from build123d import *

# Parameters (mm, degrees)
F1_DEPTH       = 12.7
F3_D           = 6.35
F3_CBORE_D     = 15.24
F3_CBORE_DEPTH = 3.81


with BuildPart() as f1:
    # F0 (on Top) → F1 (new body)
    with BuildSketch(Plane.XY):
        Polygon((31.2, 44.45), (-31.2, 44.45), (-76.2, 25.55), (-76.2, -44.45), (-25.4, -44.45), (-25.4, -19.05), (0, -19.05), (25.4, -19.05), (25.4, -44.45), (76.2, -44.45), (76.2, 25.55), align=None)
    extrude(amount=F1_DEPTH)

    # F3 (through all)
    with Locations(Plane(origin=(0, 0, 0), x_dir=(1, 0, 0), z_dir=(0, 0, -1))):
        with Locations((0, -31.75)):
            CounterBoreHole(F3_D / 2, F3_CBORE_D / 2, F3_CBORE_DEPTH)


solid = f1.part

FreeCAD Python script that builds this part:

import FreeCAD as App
import Part
import Sketcher
Q = App.Units.Quantity

doc = App.newDocument("Part")
body = doc.addObject("PartDesign::Body", "Body")

sketch1 = doc.addObject("Sketcher::SketchObject", "Sketch")
body.addObject(sketch1)
sketch1.AttachmentSupport = (doc.XY_Plane, [""])
sketch1.MapMode = "FlatFace"
sketch1.addGeometry(Part.LineSegment(App.Vector(31, 44, 0), App.Vector(-31, 44, 0)), False)
sketch1.addGeometry(Part.LineSegment(App.Vector(-31, 44, 0), App.Vector(-76, 26, 0)), False)
sketch1.addGeometry(Part.LineSegment(App.Vector(-76, 26, 0), App.Vector(-76, -44, 0)), False)
sketch1.addGeometry(Part.LineSegment(App.Vector(-76, -44, 0), App.Vector(-25, -44, 0)), False)
sketch1.addGeometry(Part.LineSegment(App.Vector(-25, -44, 0), App.Vector(-25, -19, 0)), False)
sketch1.addGeometry(Part.LineSegment(App.Vector(-25, -19, 0), App.Vector(25, -19, 0)), False)
sketch1.addGeometry(Part.LineSegment(App.Vector(25, -19, 0), App.Vector(25, -44, 0)), False)
sketch1.addGeometry(Part.LineSegment(App.Vector(25, -44, 0), App.Vector(76, -44, 0)), False)
sketch1.addGeometry(Part.LineSegment(App.Vector(76, -44, 0), App.Vector(76, 26, 0)), False)
sketch1.addGeometry(Part.LineSegment(App.Vector(76, 26, 0), App.Vector(31, 44, 0)), False)
sketch1.addConstraint(Sketcher.Constraint("Coincident", 0, 2, 1, 1))
sketch1.addConstraint(Sketcher.Constraint("Coincident", 1, 2, 2, 1))
sketch1.addConstraint(Sketcher.Constraint("Coincident", 2, 2, 3, 1))
sketch1.addConstraint(Sketcher.Constraint("Coincident", 3, 2, 4, 1))
sketch1.addConstraint(Sketcher.Constraint("Coincident", 4, 2, 5, 1))
sketch1.addConstraint(Sketcher.Constraint("Coincident", 5, 2, 6, 1))
sketch1.addConstraint(Sketcher.Constraint("Coincident", 6, 2, 7, 1))
sketch1.addConstraint(Sketcher.Constraint("Coincident", 7, 2, 8, 1))
sketch1.addConstraint(Sketcher.Constraint("Coincident", 8, 2, 9, 1))
sketch1.addConstraint(Sketcher.Constraint("Coincident", 9, 2, 0, 1))
sketch1.addConstraint(Sketcher.Constraint("Horizontal", 0))
sketch1.addConstraint(Sketcher.Constraint("Vertical", 2))
sketch1.addConstraint(Sketcher.Constraint("Horizontal", 3))
sketch1.addConstraint(Sketcher.Constraint("Vertical", 4))
sketch1.addConstraint(Sketcher.Constraint("Horizontal", 5))
sketch1.addConstraint(Sketcher.Constraint("Vertical", 6))
sketch1.addConstraint(Sketcher.Constraint("Horizontal", 7))
sketch1.addConstraint(Sketcher.Constraint("Vertical", 8))
sketch1.addConstraint(Sketcher.Constraint("Symmetric", 3, 2, 6, 2, -2))
sketch1.addConstraint(Sketcher.Constraint("Symmetric", 1, 2, 8, 2, -2))
sketch1.addConstraint(Sketcher.Constraint("Equal", 3, 5))
sketch1.addConstraint(Sketcher.Constraint("Equal", 1, 9))
sketch1.addConstraint(Sketcher.Constraint("DistanceX", 3, 1, 3, 2, Q("2 in")))
sketch1.addConstraint(Sketcher.Constraint("DistanceY", 4, 1, 4, 2, Q("1 in")))
sketch1.addConstraint(Sketcher.Constraint("DistanceY", 2, 2, 0, 2, Q("3.5 in")))
sketch1.addConstraint(Sketcher.Constraint("DistanceY", -1, 1, 0, 2, Q("1.75 in")))
sketch1.addConstraint(Sketcher.Constraint("DistanceX", 0, 2, 0, 1, 62.4))
sketch1.addConstraint(Sketcher.Constraint("DistanceY", 2, 2, 2, 1, 70.0))
pad1 = doc.addObject("PartDesign::Pad", "Pad")
body.addObject(pad1)
pad1.Profile = sketch1
pad1.Length = Q("0.5 in")

sketch2 = doc.addObject("Sketcher::SketchObject", "Sketch001")
body.addObject(sketch2)
sketch2.AttachmentSupport = (doc.XY_Plane, [""])
sketch2.MapMode = "FlatFace"
sketch2.addGeometry(Part.Circle(App.Vector(0, 31.8, 0), App.Vector(0, 0, 1), 3.2), False)
sketch2.addConstraint(Sketcher.Constraint("PointOnObject", 0, 3, -2))
sketch2.addConstraint(Sketcher.Constraint("Diameter", 0, Q("0.25 in")))
sketch2.addConstraint(Sketcher.Constraint("DistanceY", -1, 1, 0, 3, Q("1.25 in")))
doc.recompute()
hole = doc.addObject("PartDesign::Hole", "Hole")
body.addObject(hole)
hole.Profile = sketch2
hole.ThreadType = "None"
hole.Diameter = Q("0.25 in")
hole.DepthType = "ThroughAll"
hole.HoleCutType = "Counterbore"
hole.HoleCutDiameter = Q("0.6 in")
hole.HoleCutDepth = Q("0.15 in")
hole.Reversed = True

doc.recompute()
